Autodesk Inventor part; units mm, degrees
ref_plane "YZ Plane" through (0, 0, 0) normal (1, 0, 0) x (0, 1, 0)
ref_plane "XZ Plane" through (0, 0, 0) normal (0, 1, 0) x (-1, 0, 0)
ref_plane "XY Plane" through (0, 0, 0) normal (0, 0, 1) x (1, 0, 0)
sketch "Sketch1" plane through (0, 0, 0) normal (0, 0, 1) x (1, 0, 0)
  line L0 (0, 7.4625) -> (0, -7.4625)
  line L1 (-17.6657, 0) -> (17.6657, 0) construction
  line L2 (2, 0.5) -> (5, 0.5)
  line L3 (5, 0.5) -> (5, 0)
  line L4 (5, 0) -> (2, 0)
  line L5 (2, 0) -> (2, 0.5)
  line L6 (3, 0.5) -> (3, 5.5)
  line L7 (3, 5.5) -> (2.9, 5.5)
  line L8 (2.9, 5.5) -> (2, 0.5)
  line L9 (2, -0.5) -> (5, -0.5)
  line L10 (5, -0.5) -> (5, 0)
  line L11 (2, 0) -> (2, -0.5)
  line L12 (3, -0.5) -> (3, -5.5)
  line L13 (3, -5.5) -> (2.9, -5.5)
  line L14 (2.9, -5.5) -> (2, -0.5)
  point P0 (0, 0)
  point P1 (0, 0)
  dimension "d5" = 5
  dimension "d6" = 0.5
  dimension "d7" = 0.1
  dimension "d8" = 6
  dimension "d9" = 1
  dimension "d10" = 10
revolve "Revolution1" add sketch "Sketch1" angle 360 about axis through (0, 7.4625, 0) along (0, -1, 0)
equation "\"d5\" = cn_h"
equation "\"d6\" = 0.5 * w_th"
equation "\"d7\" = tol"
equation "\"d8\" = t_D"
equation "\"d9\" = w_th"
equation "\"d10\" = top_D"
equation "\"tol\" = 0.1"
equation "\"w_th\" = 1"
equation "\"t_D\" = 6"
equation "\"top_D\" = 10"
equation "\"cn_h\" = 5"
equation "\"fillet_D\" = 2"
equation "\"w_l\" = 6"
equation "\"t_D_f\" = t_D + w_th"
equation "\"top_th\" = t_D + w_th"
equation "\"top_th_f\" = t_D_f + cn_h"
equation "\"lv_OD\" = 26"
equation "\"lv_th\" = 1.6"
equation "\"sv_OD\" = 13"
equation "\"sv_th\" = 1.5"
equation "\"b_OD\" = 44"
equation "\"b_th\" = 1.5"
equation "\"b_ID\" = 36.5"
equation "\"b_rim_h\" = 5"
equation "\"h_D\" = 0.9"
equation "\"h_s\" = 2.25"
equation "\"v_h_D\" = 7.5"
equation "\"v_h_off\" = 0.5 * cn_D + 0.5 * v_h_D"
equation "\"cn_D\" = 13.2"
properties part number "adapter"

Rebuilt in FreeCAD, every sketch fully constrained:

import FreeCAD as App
import Part
import Sketcher
from FreeCAD import Vector

doc = App.newDocument("Part")
params = doc.addObject("Spreadsheet::Sheet", "Params")
for row, (alias, value) in enumerate([
    ("sketch1_height", "1 mm"),
    ("sketch1_height2", "5 mm"),
    ("sketch1_width", "0.1 mm"),
    ("sketch1_width2", "2 mm"),
    ("revolution_angle", "360 deg"),
], start=1):
    params.set(f"A{row}", alias)
    params.set(f"B{row}", "=" + value)
    params.setAlias(f"B{row}", alias)

body = doc.addObject("PartDesign::Body", "Body")

# Sketch on XY plane
sketch1 = body.newObject("Sketcher::SketchObject", "Sketch")
sketch1.AttachmentSupport = (doc.getObject("XY_Plane"), [""])
sketch1.MapMode = "FlatFace"
sketch1.addGeometry([
    Part.LineSegment(Vector(2.9, 5.5, 0), Vector(2, 0.5, 0)),  # 0
    Part.LineSegment(Vector(2, 0.5, 0), Vector(2, -0.5, 0)),  # 1
    Part.LineSegment(Vector(2, -0.5, 0), Vector(2.9, -5.5, 0)),  # 2
    Part.LineSegment(Vector(2.9, -5.5, 0), Vector(3, -5.5, 0)),  # 3
    Part.LineSegment(Vector(3, -5.5, 0), Vector(3, -0.5, 0)),  # 4
    Part.LineSegment(Vector(3, -0.5, 0), Vector(5, -0.5, 0)),  # 5
    Part.LineSegment(Vector(5, -0.5, 0), Vector(5, 0.5, 0)),  # 6
    Part.LineSegment(Vector(5, 0.5, 0), Vector(3, 0.5, 0)),  # 7
    Part.LineSegment(Vector(3, 0.5, 0), Vector(3, 5.5, 0)),  # 8
    Part.LineSegment(Vector(3, 5.5, 0), Vector(2.9, 5.5, 0)),  # 9
], False)
sketch1.addConstraint([
    Sketcher.Constraint("Coincident", 0, 2, 1, 1),
    Sketcher.Constraint("Coincident", 1, 2, 2, 1),
    Sketcher.Constraint("Coincident", 2, 2, 3, 1),
    Sketcher.Constraint("Coincident", 3, 2, 4, 1),
    Sketcher.Constraint("Coincident", 4, 2, 5, 1),
    Sketcher.Constraint("Coincident", 5, 2, 6, 1),
    Sketcher.Constraint("Coincident", 6, 2, 7, 1),
    Sketcher.Constraint("Coincident", 7, 2, 8, 1),
    Sketcher.Constraint("Coincident", 8, 2, 9, 1),
    Sketcher.Constraint("Coincident", 9, 2, 0, 1),
    Sketcher.Constraint("Vertical", 1),
    Sketcher.Constraint("Horizontal", 3),
    Sketcher.Constraint("Vertical", 4),
    Sketcher.Constraint("Horizontal", 5),
    Sketcher.Constraint("Vertical", 6),
    Sketcher.Constraint("Horizontal", 7),
    Sketcher.Constraint("Vertical", 8),
    Sketcher.Constraint("Horizontal", 9),
    Sketcher.Constraint("Symmetric", 4, 2, 7, 2, -1),
    Sketcher.Constraint("Symmetric", 2, 2, 9, 2, -1),
    Sketcher.Constraint("Horizontal", 1, 2, 4, 2),
    Sketcher.Constraint("Horizontal", 0, 2, 6, 2),
    Sketcher.Constraint("DistanceY", 1, 2, 1, 1, 1.0),
    Sketcher.Constraint("DistanceY", 4, 1, 4, 2, 5.0),
    Sketcher.Constraint("DistanceX", 3, 1, 3, 2, 0.1),
    Sketcher.Constraint("DistanceX", -1, 1, 5, 2, 5.0),
    Sketcher.Constraint("DistanceX", 1, 2, 3, 2, 1.0),
    Sketcher.Constraint("DistanceX", 5, 1, 5, 2, 2.0),
])
sketch1.setExpression("Constraints[22]", "Params.sketch1_height")
sketch1.setExpression("Constraints[23]", "Params.sketch1_height2")
sketch1.setExpression("Constraints[24]", "Params.sketch1_width")
sketch1.setExpression("Constraints[27]", "Params.sketch1_width2")
revolution = body.newObject("PartDesign::Revolution", "Revolution")
revolution.Profile = sketch1
revolution.ReferenceAxis = (sketch1, ["V_Axis"])
revolution.setExpression("Angle", "Params.revolution_angle")

doc.recompute()
